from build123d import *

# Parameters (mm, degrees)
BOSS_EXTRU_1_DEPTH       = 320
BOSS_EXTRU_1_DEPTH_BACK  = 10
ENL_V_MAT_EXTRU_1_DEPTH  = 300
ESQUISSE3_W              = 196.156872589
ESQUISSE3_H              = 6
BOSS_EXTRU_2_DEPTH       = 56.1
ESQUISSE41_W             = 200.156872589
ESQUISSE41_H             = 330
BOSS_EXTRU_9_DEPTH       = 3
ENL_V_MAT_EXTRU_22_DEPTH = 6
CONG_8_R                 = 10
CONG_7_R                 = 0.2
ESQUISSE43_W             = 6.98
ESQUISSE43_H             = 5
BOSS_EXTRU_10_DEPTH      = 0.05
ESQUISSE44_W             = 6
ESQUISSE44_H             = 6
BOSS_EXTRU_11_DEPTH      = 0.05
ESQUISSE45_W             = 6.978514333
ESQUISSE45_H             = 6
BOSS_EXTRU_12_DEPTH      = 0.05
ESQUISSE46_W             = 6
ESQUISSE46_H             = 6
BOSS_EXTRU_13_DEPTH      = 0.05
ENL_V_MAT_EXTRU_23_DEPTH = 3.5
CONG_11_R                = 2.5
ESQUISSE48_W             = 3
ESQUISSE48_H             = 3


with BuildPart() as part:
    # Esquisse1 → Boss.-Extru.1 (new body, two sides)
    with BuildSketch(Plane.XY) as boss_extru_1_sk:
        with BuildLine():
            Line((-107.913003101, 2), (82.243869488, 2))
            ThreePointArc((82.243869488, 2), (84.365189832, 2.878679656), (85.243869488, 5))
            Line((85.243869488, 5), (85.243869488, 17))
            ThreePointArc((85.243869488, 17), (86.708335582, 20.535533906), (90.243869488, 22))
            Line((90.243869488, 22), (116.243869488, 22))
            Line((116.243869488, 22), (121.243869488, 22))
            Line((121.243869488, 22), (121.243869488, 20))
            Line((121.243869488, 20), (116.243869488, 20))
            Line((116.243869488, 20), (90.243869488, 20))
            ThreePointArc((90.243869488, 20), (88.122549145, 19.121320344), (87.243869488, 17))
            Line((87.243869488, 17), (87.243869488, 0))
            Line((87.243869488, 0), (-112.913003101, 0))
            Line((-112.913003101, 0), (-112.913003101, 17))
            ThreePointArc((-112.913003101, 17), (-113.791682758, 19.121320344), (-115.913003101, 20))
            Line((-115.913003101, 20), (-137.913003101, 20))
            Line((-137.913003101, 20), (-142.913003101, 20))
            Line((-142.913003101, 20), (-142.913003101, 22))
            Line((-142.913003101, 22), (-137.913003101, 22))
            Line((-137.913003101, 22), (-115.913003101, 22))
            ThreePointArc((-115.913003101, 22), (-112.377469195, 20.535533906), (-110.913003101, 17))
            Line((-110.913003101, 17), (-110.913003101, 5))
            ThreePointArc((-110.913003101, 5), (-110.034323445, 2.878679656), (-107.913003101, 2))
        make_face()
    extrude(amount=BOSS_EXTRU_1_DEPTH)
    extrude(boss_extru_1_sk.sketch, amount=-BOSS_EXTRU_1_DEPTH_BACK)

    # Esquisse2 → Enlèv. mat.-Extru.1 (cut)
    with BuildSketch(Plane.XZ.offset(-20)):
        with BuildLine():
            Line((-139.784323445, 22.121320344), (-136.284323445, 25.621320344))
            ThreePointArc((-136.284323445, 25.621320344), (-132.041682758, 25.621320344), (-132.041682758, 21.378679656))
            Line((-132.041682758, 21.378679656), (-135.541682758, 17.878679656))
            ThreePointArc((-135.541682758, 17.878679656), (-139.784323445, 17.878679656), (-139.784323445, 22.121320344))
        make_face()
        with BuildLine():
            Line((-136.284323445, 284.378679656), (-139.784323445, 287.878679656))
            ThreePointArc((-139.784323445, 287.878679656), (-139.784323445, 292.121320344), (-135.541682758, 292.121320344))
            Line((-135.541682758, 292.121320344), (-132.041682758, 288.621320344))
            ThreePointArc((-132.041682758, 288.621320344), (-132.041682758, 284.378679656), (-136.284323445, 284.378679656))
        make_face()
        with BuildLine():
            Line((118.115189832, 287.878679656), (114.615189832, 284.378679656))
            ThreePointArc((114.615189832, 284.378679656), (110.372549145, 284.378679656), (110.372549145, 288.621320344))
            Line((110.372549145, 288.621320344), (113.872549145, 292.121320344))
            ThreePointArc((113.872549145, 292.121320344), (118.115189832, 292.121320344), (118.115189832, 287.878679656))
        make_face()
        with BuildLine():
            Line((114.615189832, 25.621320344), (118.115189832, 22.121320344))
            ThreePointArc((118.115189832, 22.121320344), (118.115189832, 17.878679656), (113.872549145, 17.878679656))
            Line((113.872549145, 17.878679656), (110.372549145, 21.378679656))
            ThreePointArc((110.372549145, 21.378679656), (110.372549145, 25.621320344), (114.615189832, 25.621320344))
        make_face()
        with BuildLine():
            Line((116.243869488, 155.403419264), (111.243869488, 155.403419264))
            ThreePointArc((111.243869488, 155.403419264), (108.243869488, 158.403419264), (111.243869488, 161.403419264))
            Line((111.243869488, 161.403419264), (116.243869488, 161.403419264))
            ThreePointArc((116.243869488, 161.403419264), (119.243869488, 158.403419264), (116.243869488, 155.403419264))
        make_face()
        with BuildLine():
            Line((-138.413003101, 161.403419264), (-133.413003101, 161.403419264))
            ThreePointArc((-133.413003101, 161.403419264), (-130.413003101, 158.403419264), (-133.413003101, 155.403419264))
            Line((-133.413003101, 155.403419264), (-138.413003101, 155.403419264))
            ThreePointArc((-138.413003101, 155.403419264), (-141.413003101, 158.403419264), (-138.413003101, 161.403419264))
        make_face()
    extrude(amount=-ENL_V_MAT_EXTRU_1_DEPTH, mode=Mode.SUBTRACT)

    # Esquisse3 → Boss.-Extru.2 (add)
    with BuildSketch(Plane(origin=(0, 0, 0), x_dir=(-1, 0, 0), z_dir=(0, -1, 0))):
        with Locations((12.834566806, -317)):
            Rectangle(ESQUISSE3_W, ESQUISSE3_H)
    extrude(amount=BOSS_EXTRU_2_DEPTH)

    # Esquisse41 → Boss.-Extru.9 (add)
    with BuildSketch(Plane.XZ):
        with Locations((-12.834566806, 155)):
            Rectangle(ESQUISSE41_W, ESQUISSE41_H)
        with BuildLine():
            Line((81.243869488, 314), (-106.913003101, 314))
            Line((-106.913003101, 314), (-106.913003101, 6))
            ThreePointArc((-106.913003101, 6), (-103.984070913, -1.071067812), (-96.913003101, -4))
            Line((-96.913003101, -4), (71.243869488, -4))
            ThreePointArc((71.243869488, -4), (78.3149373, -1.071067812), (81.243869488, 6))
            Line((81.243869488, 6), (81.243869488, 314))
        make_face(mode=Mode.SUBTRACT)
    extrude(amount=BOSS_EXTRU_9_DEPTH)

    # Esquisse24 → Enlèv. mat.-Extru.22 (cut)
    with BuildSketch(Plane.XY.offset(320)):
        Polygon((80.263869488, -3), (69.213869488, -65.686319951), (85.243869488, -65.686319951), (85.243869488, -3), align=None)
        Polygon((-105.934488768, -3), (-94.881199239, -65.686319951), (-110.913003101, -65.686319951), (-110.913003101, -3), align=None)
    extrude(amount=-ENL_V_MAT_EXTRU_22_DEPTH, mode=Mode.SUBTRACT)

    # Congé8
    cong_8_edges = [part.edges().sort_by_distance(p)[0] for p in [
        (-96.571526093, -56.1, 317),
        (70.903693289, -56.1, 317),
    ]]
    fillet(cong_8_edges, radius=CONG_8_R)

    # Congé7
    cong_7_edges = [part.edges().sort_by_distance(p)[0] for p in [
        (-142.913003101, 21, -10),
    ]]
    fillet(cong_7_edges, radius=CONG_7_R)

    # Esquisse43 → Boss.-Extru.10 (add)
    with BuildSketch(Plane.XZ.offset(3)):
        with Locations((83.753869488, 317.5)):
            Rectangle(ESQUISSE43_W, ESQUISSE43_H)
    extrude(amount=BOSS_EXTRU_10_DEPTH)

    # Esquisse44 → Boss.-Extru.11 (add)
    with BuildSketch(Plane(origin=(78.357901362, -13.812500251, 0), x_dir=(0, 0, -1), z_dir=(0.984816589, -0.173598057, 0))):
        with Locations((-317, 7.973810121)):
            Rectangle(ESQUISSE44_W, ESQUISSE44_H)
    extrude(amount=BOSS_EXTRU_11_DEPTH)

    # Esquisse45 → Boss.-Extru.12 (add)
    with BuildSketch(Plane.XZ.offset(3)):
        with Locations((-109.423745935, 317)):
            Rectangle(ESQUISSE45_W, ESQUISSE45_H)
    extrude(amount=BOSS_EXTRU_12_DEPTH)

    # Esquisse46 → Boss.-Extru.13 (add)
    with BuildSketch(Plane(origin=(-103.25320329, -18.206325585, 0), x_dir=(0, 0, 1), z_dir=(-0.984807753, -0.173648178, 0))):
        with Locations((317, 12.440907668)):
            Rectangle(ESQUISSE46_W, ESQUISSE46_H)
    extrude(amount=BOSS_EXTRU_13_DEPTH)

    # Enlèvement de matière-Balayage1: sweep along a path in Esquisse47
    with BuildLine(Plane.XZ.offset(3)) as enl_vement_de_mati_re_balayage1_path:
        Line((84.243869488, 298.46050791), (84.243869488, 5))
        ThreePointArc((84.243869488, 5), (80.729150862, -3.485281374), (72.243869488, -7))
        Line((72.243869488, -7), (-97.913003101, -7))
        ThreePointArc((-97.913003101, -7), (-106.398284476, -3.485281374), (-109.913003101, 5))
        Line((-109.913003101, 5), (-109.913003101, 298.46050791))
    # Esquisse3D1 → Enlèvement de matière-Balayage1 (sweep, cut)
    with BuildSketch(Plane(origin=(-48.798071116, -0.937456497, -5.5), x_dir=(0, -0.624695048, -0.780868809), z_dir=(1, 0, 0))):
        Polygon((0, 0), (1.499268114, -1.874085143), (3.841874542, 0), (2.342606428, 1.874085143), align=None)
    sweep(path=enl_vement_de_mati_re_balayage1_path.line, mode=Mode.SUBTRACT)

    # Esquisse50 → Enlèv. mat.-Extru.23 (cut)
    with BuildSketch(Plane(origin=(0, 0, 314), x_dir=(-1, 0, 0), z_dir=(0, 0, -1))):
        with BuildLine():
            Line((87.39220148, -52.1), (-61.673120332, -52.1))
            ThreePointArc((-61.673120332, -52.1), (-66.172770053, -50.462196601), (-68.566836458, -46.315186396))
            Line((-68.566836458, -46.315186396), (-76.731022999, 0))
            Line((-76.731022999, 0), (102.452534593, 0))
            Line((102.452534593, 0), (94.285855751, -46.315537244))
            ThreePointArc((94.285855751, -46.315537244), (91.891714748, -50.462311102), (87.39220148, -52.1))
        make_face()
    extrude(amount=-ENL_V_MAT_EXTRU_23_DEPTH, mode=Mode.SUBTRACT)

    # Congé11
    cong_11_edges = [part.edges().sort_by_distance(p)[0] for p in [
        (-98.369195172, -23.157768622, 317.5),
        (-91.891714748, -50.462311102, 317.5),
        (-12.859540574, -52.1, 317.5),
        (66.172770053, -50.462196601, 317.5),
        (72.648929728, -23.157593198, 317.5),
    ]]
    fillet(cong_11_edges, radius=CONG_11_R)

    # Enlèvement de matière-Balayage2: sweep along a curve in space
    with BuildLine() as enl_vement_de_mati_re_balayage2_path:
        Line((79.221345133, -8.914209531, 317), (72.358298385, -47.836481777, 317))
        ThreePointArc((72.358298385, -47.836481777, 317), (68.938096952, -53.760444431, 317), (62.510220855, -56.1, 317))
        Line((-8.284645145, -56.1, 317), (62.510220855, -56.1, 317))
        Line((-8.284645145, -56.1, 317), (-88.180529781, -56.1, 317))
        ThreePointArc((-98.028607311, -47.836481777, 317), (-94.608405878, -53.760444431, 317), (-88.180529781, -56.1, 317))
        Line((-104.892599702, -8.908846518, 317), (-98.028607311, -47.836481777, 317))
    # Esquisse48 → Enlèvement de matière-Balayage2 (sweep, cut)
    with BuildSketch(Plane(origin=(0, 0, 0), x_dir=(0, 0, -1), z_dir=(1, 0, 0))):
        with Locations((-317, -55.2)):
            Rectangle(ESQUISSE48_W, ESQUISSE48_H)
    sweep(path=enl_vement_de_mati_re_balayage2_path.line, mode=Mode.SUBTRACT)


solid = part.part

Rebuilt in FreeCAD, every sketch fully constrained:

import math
import FreeCAD as App
import Part
import Sketcher

V = App.Vector
Q = App.Units.Quantity


def edges_at(feature, points):
    """Names of the edges that pass closest to the given points."""
    edges = feature.Shape.Edges
    near = lambda p: min(range(len(edges)), key=lambda i: edges[i].distToShape(Part.Vertex(*p))[0])
    return sorted({f"Edge{near(p) + 1}" for p in points})


def add_polygon(sketch, points):
    """Adds a closed chain of lines whose ends are joined by coincident constraints."""
    first, n = sketch.GeometryCount, len(points)
    for a, b in zip(points, points[1:] + points[:1]):
        sketch.addGeometry(Part.LineSegment(App.Vector(*a, 0), App.Vector(*b, 0)), False)
    for i in range(n):
        sketch.addConstraint(Sketcher.Constraint("Coincident", first + i, 2, first + (i + 1) % n, 1))

doc = App.newDocument("Part")
body = doc.addObject("PartDesign::Body", "Body")

sketch1 = body.newObject("Sketcher::SketchObject", "Sketch")
sketch1.AttachmentSupport = (doc.getObject("XY_Plane"), [""])
sketch1.MapMode = "FlatFace"
sketch1.addGeometry(Part.LineSegment(V(82.243869, 2, 0), V(-107.913003, 2, 0)), False)
sketch1.addGeometry(Part.ArcOfCircle(Part.Circle(V(-107.913003, 5, 0), V(0, 0, 1), 3), math.radians(180), math.radians(270)), False)
sketch1.addGeometry(Part.LineSegment(V(-110.913003, 5, 0), V(-110.913003, 17, 0)), False)
sketch1.addGeometry(Part.ArcOfCircle(Part.Circle(V(-115.913003, 17, 0), V(0, 0, 1), 5), math.radians(0), math.radians(90)), False)
sketch1.addGeometry(Part.LineSegment(V(-115.913003, 22, 0), V(-142.913003, 22, 0)), False)
sketch1.addGeometry(Part.LineSegment(V(-142.913003, 22, 0), V(-142.913003, 20, 0)), False)
sketch1.addGeometry(Part.LineSegment(V(-142.913003, 20, 0), V(-115.913003, 20, 0)), False)
sketch1.addGeometry(Part.ArcOfCircle(Part.Circle(V(-115.913003, 17, 0), V(0, 0, 1), 3), math.radians(0), math.radians(90)), False)
sketch1.addGeometry(Part.LineSegment(V(-112.913003, 17, 0), V(-112.913003, 0, 0)), False)
sketch1.addGeometry(Part.LineSegment(V(-112.913003, 0, 0), V(87.243869, 0, 0)), False)
sketch1.addGeometry(Part.LineSegment(V(87.243869, 0, 0), V(87.243869, 17, 0)), False)
sketch1.addGeometry(Part.ArcOfCircle(Part.Circle(V(90.243869, 17, 0), V(0, 0, 1), 3), math.radians(90), math.radians(180)), False)
sketch1.addGeometry(Part.LineSegment(V(90.243869, 20, 0), V(121.243869, 20, 0)), False)
sketch1.addGeometry(Part.LineSegment(V(121.243869, 20, 0), V(121.243869, 22, 0)), False)
sketch1.addGeometry(Part.LineSegment(V(121.243869, 22, 0), V(90.243869, 22, 0)), False)
sketch1.addGeometry(Part.ArcOfCircle(Part.Circle(V(90.243869, 17, 0), V(0, 0, 1), 5), math.radians(90), math.radians(180)), False)
sketch1.addGeometry(Part.LineSegment(V(85.243869, 17, 0), V(85.243869, 5, 0)), False)
sketch1.addGeometry(Part.ArcOfCircle(Part.Circle(V(82.243869, 5, 0), V(0, 0, 1), 3), math.radians(-90), math.radians(0)), False)
sketch1.addConstraint(Sketcher.Constraint("Tangent", 0, 2, 1, 2))
sketch1.addConstraint(Sketcher.Constraint("Tangent", 1, 1, 2, 1))
sketch1.addConstraint(Sketcher.Constraint("Tangent", 2, 2, 3, 1))
sketch1.addConstraint(Sketcher.Constraint("Tangent", 3, 2, 4, 1))
sketch1.addConstraint(Sketcher.Constraint("Coincident", 4, 2, 5, 1))
sketch1.addConstraint(Sketcher.Constraint("Coincident", 5, 2, 6, 1))
sketch1.addConstraint(Sketcher.Constraint("Tangent", 6, 2, 7, 2))
sketch1.addConstraint(Sketcher.Constraint("Tangent", 7, 1, 8, 1))
sketch1.addConstraint(Sketcher.Constraint("Coincident", 8, 2, 9, 1))
sketch1.addConstraint(Sketcher.Constraint("Coincident", 9, 2, 10, 1))
sketch1.addConstraint(Sketcher.Constraint("Tangent", 10, 2, 11, 2))
sketch1.addConstraint(Sketcher.Constraint("Tangent", 11, 1, 12, 1))
sketch1.addConstraint(Sketcher.Constraint("Coincident", 12, 2, 13, 1))
sketch1.addConstraint(Sketcher.Constraint("Coincident", 13, 2, 14, 1))
sketch1.addConstraint(Sketcher.Constraint("Tangent", 14, 2, 15, 1))
sketch1.addConstraint(Sketcher.Constraint("Tangent", 15, 2, 16, 1))
sketch1.addConstraint(Sketcher.Constraint("Tangent", 16, 2, 17, 2))
sketch1.addConstraint(Sketcher.Constraint("Tangent", 17, 1, 0, 1))
sketch1.addConstraint(Sketcher.Constraint("Horizontal", 0))
sketch1.addConstraint(Sketcher.Constraint("Vertical", 2))
sketch1.addConstraint(Sketcher.Constraint("Horizontal", 4))
sketch1.addConstraint(Sketcher.Constraint("Vertical", 5))
sketch1.addConstraint(Sketcher.Constraint("Horizontal", 6))
sketch1.addConstraint(Sketcher.Constraint("Vertical", 8))
sketch1.addConstraint(Sketcher.Constraint("Horizontal", 9))
sketch1.addConstraint(Sketcher.Constraint("Vertical", 10))
sketch1.addConstraint(Sketcher.Constraint("Horizontal", 12))
sketch1.addConstraint(Sketcher.Constraint("Vertical", 13))
sketch1.addConstraint(Sketcher.Constraint("Horizontal", 14))
sketch1.addConstraint(Sketcher.Constraint("Vertical", 16))
sketch1.addConstraint(Sketcher.Constraint("Coincident", 7, 3, 3, 3))
sketch1.addConstraint(Sketcher.Constraint("Coincident", 15, 3, 11, 3))
sketch1.addConstraint(Sketcher.Constraint("Equal", 1, 7))
sketch1.addConstraint(Sketcher.Constraint("Equal", 7, 11))
sketch1.addConstraint(Sketcher.Constraint("Equal", 3, 15))
sketch1.addConstraint(Sketcher.Constraint("Equal", 11, 17))
sketch1.addConstraint(Sketcher.Constraint("PointOnObject", 8, 2, -1))
sketch1.addConstraint(Sketcher.Constraint("Horizontal", 7, 3, 11, 3))
sketch1.addConstraint(Sketcher.Constraint("Radius", 1, Q("3 mm")))
sketch1.addConstraint(Sketcher.Constraint("Radius", 3, Q("5 mm")))
sketch1.addConstraint(Sketcher.Constraint("DistanceX", 4, 2, 4, 1, Q("27 mm")))
sketch1.addConstraint(Sketcher.Constraint("DistanceX", 12, 1, 12, 2, Q("31 mm")))
sketch1.addConstraint(Sketcher.Constraint("DistanceY", 2, 1, 2, 2, Q("12 mm")))
sketch1.addConstraint(Sketcher.Constraint("DistanceY", 8, 2, 8, 1, Q("17 mm")))
sketch1.addConstraint(Sketcher.Constraint("DistanceX", 0, 2, 0, 1, Q("190.156873 mm")))
sketch1.addConstraint(Sketcher.Constraint("DistanceX", -1, 1, 11, 3, Q("90.243869 mm")))
pad1 = body.newObject("PartDesign::Pad", "Pad")
pad1.Profile = sketch1
pad1.Type = "TwoLengths"
pad1.Length = 320
pad1.Length2 = 10

sketch2 = body.newObject("Sketcher::SketchObject", "Sketch001")
sketch2.AttachmentSupport = (doc.getObject("XZ_Plane"), [""])
sketch2.MapMode = "FlatFace"
sketch2.AttachmentOffset = App.Placement(V(0, 0, -20), App.Rotation())
sketch2.addGeometry(Part.LineSegment(V(-136.284323, 25.62132, 0), V(-139.784323, 22.12132, 0)), False)
sketch2.addGeometry(Part.ArcOfCircle(Part.Circle(V(-137.663003, 20, 0), V(0, 0, 1), 3), math.radians(135), math.radians(315)), False)
sketch2.addGeometry(Part.LineSegment(V(-135.541683, 17.87868, 0), V(-132.041683, 21.37868, 0)), False)
sketch2.addGeometry(Part.ArcOfCircle(Part.Circle(V(-134.163003, 23.5, 0), V(0, 0, 1), 3), math.radians(-45), math.radians(135)), False)
sketch2.addGeometry(Part.LineSegment(V(-139.784323, 287.87868, 0), V(-136.284323, 284.37868, 0)), False)
sketch2.addGeometry(Part.ArcOfCircle(Part.Circle(V(-134.163003, 286.5, 0), V(0, 0, 1), 3), math.radians(-135), math.radians(45)), False)
sketch2.addGeometry(Part.LineSegment(V(-132.041683, 288.62132, 0), V(-135.541683, 292.12132, 0)), False)
sketch2.addGeometry(Part.ArcOfCircle(Part.Circle(V(-137.663003, 290, 0), V(0, 0, 1), 3), math.radians(45), math.radians(225)), False)
sketch2.addGeometry(Part.LineSegment(V(114.61519, 284.37868, 0), V(118.11519, 287.87868, 0)), False)
sketch2.addGeometry(Part.ArcOfCircle(Part.Circle(V(115.993869, 290, 0), V(0, 0, 1), 3), math.radians(-45), math.radians(135)), False)
sketch2.addGeometry(Part.LineSegment(V(113.872549, 292.12132, 0), V(110.372549, 288.62132, 0)), False)
sketch2.addGeometry(Part.ArcOfCircle(Part.Circle(V(112.493869, 286.5, 0), V(0, 0, 1), 3), math.radians(135), math.radians(315)), False)
sketch2.addGeometry(Part.LineSegment(V(118.11519, 22.12132, 0), V(114.61519, 25.62132, 0)), False)
sketch2.addGeometry(Part.ArcOfCircle(Part.Circle(V(112.493869, 23.5, 0), V(0, 0, 1), 3), math.radians(45), math.radians(225)), False)
sketch2.addGeometry(Part.LineSegment(V(110.372549, 21.37868, 0), V(113.872549, 17.87868, 0)), False)
sketch2.addGeometry(Part.ArcOfCircle(Part.Circle(V(115.993869, 20, 0), V(0, 0, 1), 3), math.radians(-135), math.radians(45)), False)
sketch2.addGeometry(Part.LineSegment(V(111.243869, 155.403419, 0), V(116.243869, 155.403419, 0)), False)
sketch2.addGeometry(Part.ArcOfCircle(Part.Circle(V(116.243869, 158.403419, 0), V(0, 0, 1), 3), math.radians(-90), math.radians(90)), False)
sketch2.addGeometry(Part.LineSegment(V(116.243869, 161.403419, 0), V(111.243869, 161.403419, 0)), False)
sketch2.addGeometry(Part.ArcOfCircle(Part.Circle(V(111.243869, 158.403419, 0), V(0, 0, 1), 3), math.radians(90), math.radians(270)), False)
sketch2.addGeometry(Part.LineSegment(V(-133.413003, 161.403419, 0), V(-138.413003, 161.403419, 0)), False)
sketch2.addGeometry(Part.ArcOfCircle(Part.Circle(V(-138.413003, 158.403419, 0), V(0, 0, 1), 3), math.radians(90), math.radians(270)), False)
sketch2.addGeometry(Part.LineSegment(V(-138.413003, 155.403419, 0), V(-133.413003, 155.403419, 0)), False)
sketch2.addGeometry(Part.ArcOfCircle(Part.Circle(V(-133.413003, 158.403419, 0), V(0, 0, 1), 3), math.radians(-90), math.radians(90)), False)
sketch2.addConstraint(Sketcher.Constraint("Tangent", 0, 2, 1, 1))
sketch2.addConstraint(Sketcher.Constraint("Tangent", 1, 2, 2, 1))
sketch2.addConstraint(Sketcher.Constraint("Tangent", 2, 2, 3, 1))
sketch2.addConstraint(Sketcher.Constraint("Tangent", 3, 2, 0, 1))
sketch2.addConstraint(Sketcher.Constraint("Tangent", 4, 2, 5, 1))
sketch2.addConstraint(Sketcher.Constraint("Tangent", 5, 2, 6, 1))
sketch2.addConstraint(Sketcher.Constraint("Tangent", 6, 2, 7, 1))
sketch2.addConstraint(Sketcher.Constraint("Tangent", 7, 2, 4, 1))
sketch2.addConstraint(Sketcher.Constraint("Tangent", 8, 2, 9, 1))
sketch2.addConstraint(Sketcher.Constraint("Tangent", 9, 2, 10, 1))
sketch2.addConstraint(Sketcher.Constraint("Tangent", 10, 2, 11, 1))
sketch2.addConstraint(Sketcher.Constraint("Tangent", 11, 2, 8, 1))
sketch2.addConstraint(Sketcher.Constraint("Tangent", 12, 2, 13, 1))
sketch2.addConstraint(Sketcher.Constraint("Tangent", 13, 2, 14, 1))
sketch2.addConstraint(Sketcher.Constraint("Tangent", 14, 2, 15, 1))
sketch2.addConstraint(Sketcher.Constraint("Tangent", 15, 2, 12, 1))
sketch2.addConstraint(Sketcher.Constraint("Tangent", 16, 2, 17, 1))
sketch2.addConstraint(Sketcher.Constraint("Tangent", 17, 2, 18, 1))
sketch2.addConstraint(Sketcher.Constraint("Tangent", 18, 2, 19, 1))
sketch2.addConstraint(Sketcher.Constraint("Tangent", 19, 2, 16, 1))
sketch2.addConstraint(Sketcher.Constraint("Tangent", 20, 2, 21, 1))
sketch2.addConstraint(Sketcher.Constraint("Tangent", 21, 2, 22, 1))
sketch2.addConstraint(Sketcher.Constraint("Tangent", 22, 2, 23, 1))
sketch2.addConstraint(Sketcher.Constraint("Tangent", 23, 2, 20, 1))
sketch2.addConstraint(Sketcher.Constraint("Horizontal", 16))
sketch2.addConstraint(Sketcher.Constraint("Horizontal", 18))
sketch2.addConstraint(Sketcher.Constraint("Horizontal", 20))
sketch2.addConstraint(Sketcher.Constraint("Horizontal", 22))
sketch2.addConstraint(Sketcher.Constraint("Equal", 1, 3))
sketch2.addConstraint(Sketcher.Constraint("Equal", 3, 5))
sketch2.addConstraint(Sketcher.Constraint("Equal", 5, 7))
sketch2.addConstraint(Sketcher.Constraint("Equal", 7, 9))
sketch2.addConstraint(Sketcher.Constraint("Equal", 9, 11))
sketch2.addConstraint(Sketcher.Constraint("Equal", 11, 13))
sketch2.addConstraint(Sketcher.Constraint("Equal", 13, 15))
sketch2.addConstraint(Sketcher.Constraint("Equal", 15, 17))
sketch2.addConstraint(Sketcher.Constraint("Equal", 19, 21))
sketch2.addConstraint(Sketcher.Constraint("Perpendicular", 2, 4))
sketch2.addConstraint(Sketcher.Constraint("Perpendicular", 6, 8))
sketch2.addConstraint(Sketcher.Constraint("Perpendicular", 10, 12))
sketch2.addConstraint(Sketcher.Constraint("Horizontal", 7, 3, 9, 3))
sketch2.addConstraint(Sketcher.Constraint("Horizontal", 5, 3, 11, 3))
sketch2.addConstraint(Sketcher.Constraint("Horizontal", 3, 3, 13, 3))
sketch2.addConstraint(Sketcher.Constraint("Horizontal", 1, 3, 15, 3))
sketch2.addConstraint(Sketcher.Constraint("Horizontal", 19, 3, 21, 3))
sketch2.addConstraint(Sketcher.Constraint("Horizontal", 7, 2, 8, 2))
sketch2.addConstraint(Sketcher.Constraint("Vertical", 3, 3, 5, 3))
sketch2.addConstraint(Sketcher.Constraint("Vertical", 1, 3, 7, 3))
sketch2.addConstraint(Sketcher.Constraint("Vertical", 11, 3, 13, 3))
sketch2.addConstraint(Sketcher.Constraint("Equal", 18, 20))
sketch2.addConstraint(Sketcher.Constraint("Radius", 1, Q("3 mm")))
sketch2.addConstraint(Sketcher.Constraint("DistanceX", 16, 1, 16, 2, Q("5 mm")))
sketch2.addConstraint(Sketcher.Constraint("DistanceY", -1, 1, 1, 3, Q("20 mm")))
sketch2.addConstraint(Sketcher.Constraint("DistanceY", -1, 1, 7, 3, Q("290 mm")))
sketch2.addConstraint(Sketcher.Constraint("DistanceY", 3, 3, 5, 3, Q("263 mm")))
sketch2.addConstraint(Sketcher.Constraint("DistanceX", 11, 3, 17, 3, Q("3.75 mm")))
sketch2.addConstraint(Sketcher.Constraint("DistanceX", 21, 3, 5, 3, Q("4.25 mm")))
sketch2.addConstraint(Sketcher.Constraint("DistanceY", 0, 2, 21, 3, Q("136.282099 mm")))
sketch2.addConstraint(Sketcher.Constraint("DistanceX", -1, 1, 9, 3, Q("115.993869 mm")))
sketch2.addConstraint(Sketcher.Constraint("DistanceX", 1, 3, -1, 1, Q("137.663003 mm")))
pocket1 = body.newObject("PartDesign::Pocket", "Pocket")
pocket1.Profile = sketch2
pocket1.Length = 300

sketch3 = body.newObject("Sketcher::SketchObject", "Sketch002")
sketch3.AttachmentSupport = (doc.getObject("XZ_Plane"), [""])
sketch3.MapMode = "FlatFace"
add_polygon(sketch3, [(85.243869, 314), (85.243869, 320), (-110.913003, 320), (-110.913003, 314)])
sketch3.addConstraint(Sketcher.Constraint("Vertical", 0))
sketch3.addConstraint(Sketcher.Constraint("Horizontal", 1))
sketch3.addConstraint(Sketcher.Constraint("Vertical", 2))
sketch3.addConstraint(Sketcher.Constraint("Horizontal", 3))
sketch3.addConstraint(Sketcher.Constraint("DistanceY", 0, 1, 0, 2, Q("6 mm")))
sketch3.addConstraint(Sketcher.Constraint("DistanceY", -1, 1, 0, 2, Q("320 mm")))
sketch3.addConstraint(Sketcher.Constraint("DistanceX", 1, 2, 1, 1, Q("196.156873 mm")))
sketch3.addConstraint(Sketcher.Constraint("DistanceX", -1, 1, 0, 2, Q("85.243869 mm")))
pad2 = body.newObject("PartDesign::Pad", "Pad001")
pad2.Profile = sketch3
pad2.Length = 56.1

sketch4 = body.newObject("Sketcher::SketchObject", "Sketch003")
sketch4.AttachmentSupport = (doc.getObject("XZ_Plane"), [""])
sketch4.MapMode = "FlatFace"
add_polygon(sketch4, [(-112.913003, 320), (-112.913003, -10), (87.243869, -10), (87.243869, 320)])
sketch4.addGeometry(Part.LineSegment(V(-106.913003, 314, 0), V(81.243869, 314, 0)), False)
sketch4.addGeometry(Part.LineSegment(V(81.243869, 314, 0), V(81.243869, 6, 0)), False)
sketch4.addGeometry(Part.ArcOfCircle(Part.Circle(V(71.243869, 6, 0), V(0, 0, 1), 10), math.radians(-90), math.radians(0)), False)
sketch4.addGeometry(Part.LineSegment(V(71.243869, -4, 0), V(-96.913003, -4, 0)), False)
sketch4.addGeometry(Part.ArcOfCircle(Part.Circle(V(-96.913003, 6, 0), V(0, 0, 1), 10), math.radians(180), math.radians(270)), False)
sketch4.addGeometry(Part.LineSegment(V(-106.913003, 6, 0), V(-106.913003, 314, 0)), False)
sketch4.addConstraint(Sketcher.Constraint("Coincident", 4, 2, 5, 1))
sketch4.addConstraint(Sketcher.Constraint("Tangent", 5, 2, 6, 2))
sketch4.addConstraint(Sketcher.Constraint("Tangent", 6, 1, 7, 1))
sketch4.addConstraint(Sketcher.Constraint("Tangent", 7, 2, 8, 2))
sketch4.addConstraint(Sketcher.Constraint("Tangent", 8, 1, 9, 1))
sketch4.addConstraint(Sketcher.Constraint("Coincident", 9, 2, 4, 1))
sketch4.addConstraint(Sketcher.Constraint("Vertical", 0))
sketch4.addConstraint(Sketcher.Constraint("Horizontal", 1))
sketch4.addConstraint(Sketcher.Constraint("Vertical", 2))
sketch4.addConstraint(Sketcher.Constraint("Horizontal", 3))
sketch4.addConstraint(Sketcher.Constraint("Horizontal", 4))
sketch4.addConstraint(Sketcher.Constraint("Vertical", 5))
sketch4.addConstraint(Sketcher.Constraint("Horizontal", 7))
sketch4.addConstraint(Sketcher.Constraint("Vertical", 9))
sketch4.addConstraint(Sketcher.Constraint("Equal", 6, 8))
sketch4.addConstraint(Sketcher.Constraint("Radius", 6, Q("10 mm")))
sketch4.addConstraint(Sketcher.Constraint("DistanceY", 0, 2, 0, 1, Q("330 mm")))
sketch4.addConstraint(Sketcher.Constraint("DistanceY", 5, 2, 5, 1, Q("308 mm")))
sketch4.addConstraint(Sketcher.Constraint("DistanceY", -1, 1, 6, 3, Q("6 mm")))
sketch4.addConstraint(Sketcher.Constraint("DistanceY", 0, 2, -1, 1, Q("10 mm")))
sketch4.addConstraint(Sketcher.Constraint("DistanceX", 0, 2, 8, 3, Q("16 mm")))
sketch4.addConstraint(Sketcher.Constraint("DistanceX", 6, 3, 1, 2, Q("16 mm")))
sketch4.addConstraint(Sketcher.Constraint("DistanceX", 1, 1, 1, 2, Q("200.156873 mm")))
sketch4.addConstraint(Sketcher.Constraint("DistanceX", -1, 1, 6, 3, Q("71.243869 mm")))
pad3 = body.newObject("PartDesign::Pad", "Pad002")
pad3.Profile = sketch4
pad3.Length = 3

sketch5 = body.newObject("Sketcher::SketchObject", "Sketch004")
sketch5.AttachmentSupport = (doc.getObject("XY_Plane"), [""])
sketch5.MapMode = "FlatFace"
sketch5.AttachmentOffset = App.Placement(V(0, 0, 320), App.Rotation())
add_polygon(sketch5, [(80.263869, -3), (69.213869, -65.68632), (85.243869, -65.68632), (85.243869, -3)])
add_polygon(sketch5, [(-94.881199, -65.68632), (-105.934489, -3), (-110.913003, -3), (-110.913003, -65.68632)])
sketch5.addConstraint(Sketcher.Constraint("Horizontal", 1))
sketch5.addConstraint(Sketcher.Constraint("Vertical", 2))
sketch5.addConstraint(Sketcher.Constraint("Horizontal", 3))
sketch5.addConstraint(Sketcher.Constraint("Horizontal", 5))
sketch5.addConstraint(Sketcher.Constraint("Vertical", 6))
sketch5.addConstraint(Sketcher.Constraint("Horizontal", 7))
sketch5.addConstraint(Sketcher.Constraint("Horizontal", 3, 2, 4, 2))
sketch5.addConstraint(Sketcher.Constraint("Horizontal", 1, 2, 6, 2))
sketch5.addConstraint(Sketcher.Constraint("Angle", 4, Q("100 deg")))
sketch5.addConstraint(Sketcher.Constraint("DistanceY", 2, 2, -1, 1, Q("3 mm")))
sketch5.addConstraint(Sketcher.Constraint("DistanceX", 1, 1, 1, 2, Q("16.03 mm")))
sketch5.addConstraint(Sketcher.Constraint("DistanceX", 3, 2, 3, 1, Q("4.98 mm")))
sketch5.addConstraint(Sketcher.Constraint("DistanceY", 2, 1, 2, 2, Q("62.68632 mm")))
sketch5.addConstraint(Sketcher.Constraint("DistanceX", 7, 2, -1, 1, Q("94.881199 mm")))
sketch5.addConstraint(Sketcher.Constraint("DistanceX", 5, 2, 5, 1, Q("4.978514 mm")))
sketch5.addConstraint(Sketcher.Constraint("DistanceX", -1, 1, 0, 2, Q("69.213869 mm")))
pocket2 = body.newObject("PartDesign::Pocket", "Pocket001")
pocket2.Profile = sketch5
pocket2.Length = 6
doc.recompute()

fillet = body.newObject("PartDesign::Fillet", "Fillet")
fillet.Base = (pocket2, edges_at(pocket2, [(-96.572, -56.1, 317), (70.904, -56.1, 317)]))
fillet.Radius = 10
doc.recompute()

fillet2 = body.newObject("PartDesign::Fillet", "Fillet001")
fillet2.Base = (fillet, edges_at(fillet, [(-142.913, 21, -10)]))
fillet2.Radius = 0.2

sketch6 = body.newObject("Sketcher::SketchObject", "Sketch005")
sketch6.AttachmentSupport = (doc.getObject("XZ_Plane"), [""])
sketch6.MapMode = "FlatFace"
sketch6.AttachmentOffset = App.Placement(V(0, 0, 3), App.Rotation())
add_polygon(sketch6, [(80.263869, 320), (80.263869, 315), (87.243869, 315), (87.243869, 320)])
sketch6.addConstraint(Sketcher.Constraint("Vertical", 0))
sketch6.addConstraint(Sketcher.Constraint("Horizontal", 1))
sketch6.addConstraint(Sketcher.Constraint("Vertical", 2))
sketch6.addConstraint(Sketcher.Constraint("Horizontal", 3))
sketch6.addConstraint(Sketcher.Constraint("DistanceY", 0, 2, 0, 1, Q("5 mm")))
sketch6.addConstraint(Sketcher.Constraint("DistanceY", -1, 1, 0, 2, Q("315 mm")))
sketch6.addConstraint(Sketcher.Constraint("DistanceX", 1, 1, 1, 2, Q("6.98 mm")))
sketch6.addConstraint(Sketcher.Constraint("DistanceX", -1, 1, 0, 2, Q("80.263869 mm")))
pad4 = body.newObject("PartDesign::Pad", "Pad003")
pad4.Profile = sketch6
pad4.Length = 0.05

sketch7 = body.newObject("Sketcher::SketchObject", "Sketch006")
sketch7.Placement = App.Placement(V(78.357901, -13.8125, 0), App.Rotation(V(0, 0, -1), V(0.173598057, 0.984816589, 0), V(0.984816589, -0.173598057, 0), "ZXY"))
add_polygon(sketch7, [(-320, 10.97381), (-320, 4.97381), (-314, 4.97381), (-314, 10.97381)])
sketch7.addConstraint(Sketcher.Constraint("Vertical", 0))
sketch7.addConstraint(Sketcher.Constraint("Horizontal", 1))
sketch7.addConstraint(Sketcher.Constraint("Vertical", 2))
sketch7.addConstraint(Sketcher.Constraint("Horizontal", 3))
sketch7.addConstraint(Sketcher.Constraint("Equal", 3, 0))
sketch7.addConstraint(Sketcher.Constraint("DistanceX", 1, 1, 1, 2, Q("6 mm")))
sketch7.addConstraint(Sketcher.Constraint("DistanceX", 0, 2, -1, 1, Q("320 mm")))
sketch7.addConstraint(Sketcher.Constraint("DistanceY", -1, 1, 0, 2, Q("4.97381 mm")))
pad5 = body.newObject("PartDesign::Pad", "Pad004")
pad5.Profile = sketch7
pad5.Length = 0.05

sketch8 = body.newObject("Sketcher::SketchObject", "Sketch007")
sketch8.AttachmentSupport = (doc.getObject("XZ_Plane"), [""])
sketch8.MapMode = "FlatFace"
sketch8.AttachmentOffset = App.Placement(V(0, 0, 3), App.Rotation())
add_polygon(sketch8, [(-112.913003, 320), (-112.913003, 314), (-105.934489, 314), (-105.934489, 320)])
sketch8.addConstraint(Sketcher.Constraint("Vertical", 0))
sketch8.addConstraint(Sketcher.Constraint("Horizontal", 1))
sketch8.addConstraint(Sketcher.Constraint("Vertical", 2))
sketch8.addConstraint(Sketcher.Constraint("Horizontal", 3))
sketch8.addConstraint(Sketcher.Constraint("DistanceY", 0, 2, 0, 1, Q("6 mm")))
sketch8.addConstraint(Sketcher.Constraint("DistanceY", -1, 1, 0, 2, Q("314 mm")))
sketch8.addConstraint(Sketcher.Constraint("DistanceX", 1, 1, 1, 2, Q("6.978514 mm")))
sketch8.addConstraint(Sketcher.Constraint("DistanceX", 1, 2, -1, 1, Q("105.934489 mm")))
pad6 = body.newObject("PartDesign::Pad", "Pad005")
pad6.Profile = sketch8
pad6.Length = 0.05

sketch9 = body.newObject("Sketcher::SketchObject", "Sketch008")
sketch9.Placement = App.Placement(V(-103.253203, -18.206326, 0), App.Rotation(V(0, 0, 1), V(-0.173648178, 0.984807753, 0), V(-0.984807753, -0.173648178, 0), "ZXY"))
add_polygon(sketch9, [(314, 15.440908), (314, 9.440908), (320, 9.440908), (320, 15.440908)])
sketch9.addConstraint(Sketcher.Constraint("Vertical", 0))
sketch9.addConstraint(Sketcher.Constraint("Horizontal", 1))
sketch9.addConstraint(Sketcher.Constraint("Vertical", 2))
sketch9.addConstraint(Sketcher.Constraint("Horizontal", 3))
sketch9.addConstraint(Sketcher.Constraint("Equal", 3, 0))
sketch9.addConstraint(Sketcher.Constraint("DistanceX", 1, 1, 1, 2, Q("6 mm")))
sketch9.addConstraint(Sketcher.Constraint("DistanceX", -1, 1, 0, 2, Q("314 mm")))
sketch9.addConstraint(Sketcher.Constraint("DistanceY", -1, 1, 0, 2, Q("9.440908 mm")))
pad7 = body.newObject("PartDesign::Pad", "Pad006")
pad7.Profile = sketch9
pad7.Length = 0.05

sketch10 = body.newObject("Sketcher::SketchObject", "Sketch009")
sketch10.AttachmentSupport = (doc.getObject("YZ_Plane"), [""])
sketch10.MapMode = "FlatFace"
sketch10.AttachmentOffset = App.Placement(V(0, 0, -48.798071), App.Rotation())
add_polygon(sketch10, [(-0.937456, -5.5), (-3.337456, -5.5), (-3.337456, -8.5), (-0.937456, -8.5)])
sketch10.addConstraint(Sketcher.Constraint("Horizontal", 0))
sketch10.addConstraint(Sketcher.Constraint("Vertical", 1))
sketch10.addConstraint(Sketcher.Constraint("Horizontal", 2))
sketch10.addConstraint(Sketcher.Constraint("Vertical", 3))
sketch10.addConstraint(Sketcher.Constraint("DistanceY", 1, 2, 1, 1, Q("3 mm")))
sketch10.addConstraint(Sketcher.Constraint("DistanceX", 0, 2, 0, 1, Q("2.4 mm")))
sketch10.addConstraint(Sketcher.Constraint("DistanceY", 0, 2, -1, 1, Q("5.5 mm")))
sketch10.addConstraint(Sketcher.Constraint("DistanceX", 0, 2, -1, 1, Q("3.337456 mm")))

sketch11 = body.newObject("Sketcher::SketchObject", "Sketch010")
sketch11.AttachmentSupport = (doc.getObject("XZ_Plane"), [""])
sketch11.MapMode = "FlatFace"
sketch11.AttachmentOffset = App.Placement(V(0, 0, 3), App.Rotation())
sketch11.addGeometry(Part.LineSegment(V(84.243869, 298.460508, 0), V(84.243869, 5, 0)), False)
sketch11.addGeometry(Part.ArcOfCircle(Part.Circle(V(72.243869, 5, 0), V(0, 0, 1), 12), math.radians(-90), math.radians(0)), False)
sketch11.addGeometry(Part.LineSegment(V(72.243869, -7, 0), V(-97.913003, -7, 0)), False)
sketch11.addGeometry(Part.ArcOfCircle(Part.Circle(V(-97.913003, 5, 0), V(0, 0, 1), 12), math.radians(180), math.radians(270)), False)
sketch11.addGeometry(Part.LineSegment(V(-109.913003, 5, 0), V(-109.913003, 298.460508, 0)), False)
sketch11.addConstraint(Sketcher.Constraint("Tangent", 0, 2, 1, 2))
sketch11.addConstraint(Sketcher.Constraint("Tangent", 1, 1, 2, 1))
sketch11.addConstraint(Sketcher.Constraint("Tangent", 2, 2, 3, 2))
sketch11.addConstraint(Sketcher.Constraint("Tangent", 3, 1, 4, 1))
sketch11.addConstraint(Sketcher.Constraint("Vertical", 0))
sketch11.addConstraint(Sketcher.Constraint("Horizontal", 2))
sketch11.addConstraint(Sketcher.Constraint("Vertical", 4))
sketch11.addConstraint(Sketcher.Constraint("Equal", 1, 3))
sketch11.addConstraint(Sketcher.Constraint("Horizontal", 0, 1, 4, 2))
sketch11.addConstraint(Sketcher.Constraint("Radius", 1, Q("12 mm")))
sketch11.addConstraint(Sketcher.Constraint("DistanceY", -1, 1, 1, 3, Q("5 mm")))
sketch11.addConstraint(Sketcher.Constraint("DistanceX", 2, 2, 2, 1, Q("170.156873 mm")))
sketch11.addConstraint(Sketcher.Constraint("DistanceY", 0, 2, 0, 1, Q("293.460508 mm")))
sketch11.addConstraint(Sketcher.Constraint("DistanceX", -1, 1, 1, 3, Q("72.243869 mm")))
doc.recompute()

subtractivepipe = body.newObject("PartDesign::SubtractivePipe", "SubtractivePipe")
subtractivepipe.Profile = sketch10
subtractivepipe.Spine = (sketch11, ["Edge1", "Edge2", "Edge3", "Edge4", "Edge5"])

sketch12 = body.newObject("Sketcher::SketchObject", "Sketch011")
sketch12.AttachmentSupport = (doc.getObject("XY_Plane"), [""])
sketch12.MapMode = "FlatFace"
sketch12.AttachmentOffset = App.Placement(V(0, 0, 314), App.Rotation())
sketch12.addGeometry(Part.LineSegment(V(61.67312, -52.1, 0), V(-87.392201, -52.1, 0)), False)
sketch12.addGeometry(Part.ArcOfCircle(Part.Circle(V(-87.392201, -45.1, 0), V(0, 0, 1), 7), math.radians(-170), math.radians(-90)), False)
sketch12.addGeometry(Part.LineSegment(V(-94.285856, -46.315537, 0), V(-102.452535, 0, 0)), False)
sketch12.addGeometry(Part.LineSegment(V(-102.452535, 0, 0), V(76.731023, 0, 0)), False)
sketch12.addGeometry(Part.LineSegment(V(76.731023, 0, 0), V(68.566836, -46.315186, 0)), False)
sketch12.addGeometry(Part.ArcOfCircle(Part.Circle(V(61.67312, -45.1, 0), V(0, 0, 1), 7), math.radians(-90), math.radians(-9.997084)), False)
sketch12.addConstraint(Sketcher.Constraint("Tangent", 0, 2, 1, 2))
sketch12.addConstraint(Sketcher.Constraint("Tangent", 1, 1, 2, 1))
sketch12.addConstraint(Sketcher.Constraint("Coincident", 2, 2, 3, 1))
sketch12.addConstraint(Sketcher.Constraint("Coincident", 3, 2, 4, 1))
sketch12.addConstraint(Sketcher.Constraint("Tangent", 4, 2, 5, 2))
sketch12.addConstraint(Sketcher.Constraint("Tangent", 5, 1, 0, 1))
sketch12.addConstraint(Sketcher.Constraint("Horizontal", 0))
sketch12.addConstraint(Sketcher.Constraint("Horizontal", 3))
sketch12.addConstraint(Sketcher.Constraint("Equal", 1, 5))
sketch12.addConstraint(Sketcher.Constraint("PointOnObject", 2, 2, -1))
sketch12.addConstraint(Sketcher.Constraint("Radius", 1, Q("7 mm")))
sketch12.addConstraint(Sketcher.Constraint("Angle", 2, Q("100 deg")))
sketch12.addConstraint(Sketcher.Constraint("DistanceY", 1, 3, -1, 1, Q("45.1 mm")))
sketch12.addConstraint(Sketcher.Constraint("DistanceX", 0, 2, 0, 1, Q("149.065322 mm")))
sketch12.addConstraint(Sketcher.Constraint("DistanceX", 1, 3, -1, 1, Q("87.392201 mm")))
sketch12.addConstraint(Sketcher.Constraint("Distance", 4, Q("47.029251 mm")))
pocket3 = body.newObject("PartDesign::Pocket", "Pocket002")
pocket3.Profile = sketch12
pocket3.Length = 3.5
pocket3.Reversed = True
doc.recompute()

fillet3 = body.newObject("PartDesign::Fillet", "Fillet002")
fillet3.Base = (pocket3, edges_at(pocket3, [
    (-98.369, -23.158, 317.5),
    (-91.892, -50.462, 317.5),
    (-12.86, -52.1, 317.5),
    (66.173, -50.462, 317.5),
    (72.649, -23.158, 317.5),
]))
fillet3.Radius = 2.5

sketch13 = body.newObject("Sketcher::SketchObject", "Sketch012")
sketch13.AttachmentSupport = (doc.getObject("YZ_Plane"), [""])
sketch13.MapMode = "FlatFace"
add_polygon(sketch13, [(-53.7, 318.5), (-56.7, 318.5), (-56.7, 315.5), (-53.7, 315.5)])
sketch13.addConstraint(Sketcher.Constraint("Horizontal", 0))
sketch13.addConstraint(Sketcher.Constraint("Vertical", 1))
sketch13.addConstraint(Sketcher.Constraint("Horizontal", 2))
sketch13.addConstraint(Sketcher.Constraint("Vertical", 3))
sketch13.addConstraint(Sketcher.Constraint("Equal", 2, 1))
sketch13.addConstraint(Sketcher.Constraint("DistanceX", 0, 2, 0, 1, Q("3 mm")))
sketch13.addConstraint(Sketcher.Constraint("DistanceX", 0, 2, -1, 1, Q("56.7 mm")))
sketch13.addConstraint(Sketcher.Constraint("DistanceY", -1, 1, 0, 2, Q("318.5 mm")))

sketch14 = body.newObject("Sketcher::SketchObject", "Sketch013")
sketch14.AttachmentSupport = (doc.getObject("XY_Plane"), [""])
sketch14.MapMode = "FlatFace"
sketch14.AttachmentOffset = App.Placement(V(0, 0, 317), App.Rotation())
sketch14.addGeometry(Part.LineSegment(V(79.221345, -8.91421, 0), V(72.358298, -47.836482, 0)), False)
sketch14.addGeometry(Part.ArcOfCircle(Part.Circle(V(62.510221, -46.1, 0), V(0, 0, 1), 10), math.radians(-90), math.radians(-10)), False)
sketch14.addGeometry(Part.LineSegment(V(62.510221, -56.1, 0), V(-8.284645, -56.1, 0)), False)
sketch14.addGeometry(Part.LineSegment(V(-8.284645, -56.1, 0), V(-88.18053, -56.1, 0)), False)
sketch14.addGeometry(Part.ArcOfCircle(Part.Circle(V(-88.18053, -46.1, 0), V(0, 0, 1), 10), math.radians(-170), math.radians(-90)), False)
sketch14.addGeometry(Part.LineSegment(V(-98.028607, -47.836482, 0), V(-104.8926, -8.908847, 0)), False)
sketch14.addConstraint(Sketcher.Constraint("Tangent", 0, 2, 1, 2))
sketch14.addConstraint(Sketcher.Constraint("Tangent", 1, 1, 2, 1))
sketch14.addConstraint(Sketcher.Constraint("Coincident", 2, 2, 3, 1))
sketch14.addConstraint(Sketcher.Constraint("Tangent", 3, 2, 4, 2))
sketch14.addConstraint(Sketcher.Constraint("Tangent", 4, 1, 5, 1))
sketch14.addConstraint(Sketcher.Constraint("Horizontal", 2))
sketch14.addConstraint(Sketcher.Constraint("Horizontal", 3))
sketch14.addConstraint(Sketcher.Constraint("Equal", 1, 4))
sketch14.addConstraint(Sketcher.Constraint("Horizontal", 0, 2, 4, 1))
sketch14.addConstraint(Sketcher.Constraint("Radius", 1, Q("10 mm")))
sketch14.addConstraint(Sketcher.Constraint("Angle", 0, Q("-100 deg")))
sketch14.addConstraint(Sketcher.Constraint("DistanceY", 1, 3, -1, 1, Q("46.1 mm")))
sketch14.addConstraint(Sketcher.Constraint("DistanceX", -1, 1, 0, 2, Q("72.358298 mm")))
sketch14.addConstraint(Sketcher.Constraint("DistanceX", 5, 2, -1, 1, Q("104.8926 mm")))
sketch14.addConstraint(Sketcher.Constraint("Distance", 0, Q("39.522711 mm")))
sketch14.addConstraint(Sketcher.Constraint("DistanceX", 2, 2, 2, 1, Q("70.794866 mm")))
sketch14.addConstraint(Sketcher.Constraint("DistanceX", 3, 2, 3, 1, Q("79.895885 mm")))
doc.recompute()

subtractivepipe2 = body.newObject("PartDesign::SubtractivePipe", "SubtractivePipe001")
subtractivepipe2.Profile = sketch13
subtractivepipe2.Spine = (sketch14, ["Edge1", "Edge2", "Edge3", "Edge4", "Edge5", "Edge6"])

doc.recompute()
